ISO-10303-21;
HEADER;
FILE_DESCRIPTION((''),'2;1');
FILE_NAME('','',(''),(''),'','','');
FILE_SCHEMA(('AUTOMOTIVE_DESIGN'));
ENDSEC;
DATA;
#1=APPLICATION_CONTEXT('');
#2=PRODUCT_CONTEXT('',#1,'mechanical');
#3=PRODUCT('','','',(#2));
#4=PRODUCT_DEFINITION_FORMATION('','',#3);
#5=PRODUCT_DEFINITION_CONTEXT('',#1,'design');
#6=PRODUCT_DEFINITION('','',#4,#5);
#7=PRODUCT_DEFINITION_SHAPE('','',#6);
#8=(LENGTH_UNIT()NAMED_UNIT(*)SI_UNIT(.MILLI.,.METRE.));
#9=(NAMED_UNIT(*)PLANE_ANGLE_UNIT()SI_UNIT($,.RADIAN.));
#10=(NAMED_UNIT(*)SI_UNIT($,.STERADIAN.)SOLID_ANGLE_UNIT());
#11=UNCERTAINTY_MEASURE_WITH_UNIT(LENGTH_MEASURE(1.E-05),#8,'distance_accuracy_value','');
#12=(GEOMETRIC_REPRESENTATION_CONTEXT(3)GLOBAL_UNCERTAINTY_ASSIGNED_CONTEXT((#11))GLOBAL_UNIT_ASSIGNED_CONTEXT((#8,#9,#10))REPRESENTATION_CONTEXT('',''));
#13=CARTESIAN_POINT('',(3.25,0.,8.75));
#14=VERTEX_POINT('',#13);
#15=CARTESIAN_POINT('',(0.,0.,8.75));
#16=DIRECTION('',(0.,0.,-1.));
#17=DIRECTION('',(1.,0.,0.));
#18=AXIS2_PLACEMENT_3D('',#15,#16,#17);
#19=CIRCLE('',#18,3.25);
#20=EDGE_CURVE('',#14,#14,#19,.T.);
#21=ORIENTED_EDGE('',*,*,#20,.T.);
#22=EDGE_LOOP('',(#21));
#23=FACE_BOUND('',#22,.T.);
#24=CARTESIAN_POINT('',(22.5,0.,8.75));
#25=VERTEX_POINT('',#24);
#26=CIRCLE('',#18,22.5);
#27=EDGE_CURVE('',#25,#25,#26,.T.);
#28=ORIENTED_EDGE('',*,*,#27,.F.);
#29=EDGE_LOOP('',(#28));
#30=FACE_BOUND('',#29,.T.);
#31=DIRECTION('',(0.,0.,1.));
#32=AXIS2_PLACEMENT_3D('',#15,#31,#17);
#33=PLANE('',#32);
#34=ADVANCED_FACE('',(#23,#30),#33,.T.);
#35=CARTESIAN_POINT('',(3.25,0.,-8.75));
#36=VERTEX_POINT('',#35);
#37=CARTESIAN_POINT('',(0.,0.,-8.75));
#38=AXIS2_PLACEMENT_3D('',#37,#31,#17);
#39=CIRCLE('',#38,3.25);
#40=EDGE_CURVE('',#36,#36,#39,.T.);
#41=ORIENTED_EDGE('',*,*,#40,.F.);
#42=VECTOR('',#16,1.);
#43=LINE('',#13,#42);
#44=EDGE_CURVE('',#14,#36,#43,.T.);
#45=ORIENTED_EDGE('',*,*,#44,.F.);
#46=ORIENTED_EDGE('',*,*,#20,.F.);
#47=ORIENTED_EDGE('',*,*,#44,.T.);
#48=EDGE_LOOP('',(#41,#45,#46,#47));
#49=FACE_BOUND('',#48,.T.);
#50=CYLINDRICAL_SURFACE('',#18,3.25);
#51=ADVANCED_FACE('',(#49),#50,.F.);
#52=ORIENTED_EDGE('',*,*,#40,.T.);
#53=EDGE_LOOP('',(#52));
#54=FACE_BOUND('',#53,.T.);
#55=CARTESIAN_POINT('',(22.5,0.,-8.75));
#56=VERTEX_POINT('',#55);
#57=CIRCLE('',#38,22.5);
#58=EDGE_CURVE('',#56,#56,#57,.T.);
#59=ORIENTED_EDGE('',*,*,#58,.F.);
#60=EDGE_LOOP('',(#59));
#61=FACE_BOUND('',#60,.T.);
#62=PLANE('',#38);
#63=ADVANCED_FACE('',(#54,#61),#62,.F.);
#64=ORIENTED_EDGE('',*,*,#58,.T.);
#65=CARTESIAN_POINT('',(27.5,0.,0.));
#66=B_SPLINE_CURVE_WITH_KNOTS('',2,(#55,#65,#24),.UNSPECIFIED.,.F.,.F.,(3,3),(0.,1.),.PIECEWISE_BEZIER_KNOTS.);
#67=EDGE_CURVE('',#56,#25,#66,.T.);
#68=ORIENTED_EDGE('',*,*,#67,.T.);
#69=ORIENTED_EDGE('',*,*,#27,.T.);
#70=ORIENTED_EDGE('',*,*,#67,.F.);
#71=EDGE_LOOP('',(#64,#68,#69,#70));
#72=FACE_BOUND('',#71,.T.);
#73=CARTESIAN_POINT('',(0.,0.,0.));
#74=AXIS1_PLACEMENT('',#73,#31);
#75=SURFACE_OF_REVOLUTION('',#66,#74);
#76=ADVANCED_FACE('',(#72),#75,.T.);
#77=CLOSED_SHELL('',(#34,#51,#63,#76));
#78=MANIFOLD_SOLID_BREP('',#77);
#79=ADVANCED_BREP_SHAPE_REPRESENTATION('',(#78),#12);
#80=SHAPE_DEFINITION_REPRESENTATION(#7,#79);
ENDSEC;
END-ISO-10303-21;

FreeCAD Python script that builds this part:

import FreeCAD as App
import Part
import Sketcher
from FreeCAD import Vector
Q = App.Units.Quantity

doc = App.newDocument("Part")
body = doc.addObject("PartDesign::Body", "Body")

sketch1 = body.newObject("Sketcher::SketchObject", "Sketch")
sketch1.AttachmentSupport = (doc.getObject("XZ_Plane"), [""])
sketch1.MapMode = "FlatFace"
sketch1.addGeometry([
    Part.LineSegment(Vector(-3.25, 8.75, 0), Vector(-22.5, 8.75, 0)),
    Part.BSplineCurve([Vector(-22.5, 8.75, 0), Vector(-27.5, 0, 0), Vector(-22.5, -8.75, 0)], [3, 3], [0, 1], False, 2, [1, 1, 1], False),
    Part.LineSegment(Vector(-22.5, -8.75, 0), Vector(-3.25, -8.75, 0)),
    Part.LineSegment(Vector(-3.25, -8.75, 0), Vector(-3.25, 8.75, 0)),
    Part.BSplineCurve([Vector(22.5, -8.75, 0), Vector(27.5, 0, 0), Vector(22.5, 8.75, 0)], [3, 3], [0, 1], False, 2, [1, 1, 1], False),
    Part.LineSegment(Vector(22.5, 8.75, 0), Vector(3.25, 8.75, 0)),
    Part.LineSegment(Vector(3.25, 8.75, 0), Vector(3.25, -8.75, 0)),
    Part.LineSegment(Vector(3.25, -8.75, 0), Vector(22.5, -8.75, 0)),
], False)
sketch1.addConstraint([
    Sketcher.Constraint("Block", 1),
    Sketcher.Constraint("Block", 4),
    Sketcher.Constraint("Coincident", 0, 2, 1, 1),
    Sketcher.Constraint("Coincident", 1, 2, 2, 1),
    Sketcher.Constraint("Coincident", 2, 2, 3, 1),
    Sketcher.Constraint("Coincident", 3, 2, 0, 1),
    Sketcher.Constraint("Coincident", 4, 2, 5, 1),
    Sketcher.Constraint("Coincident", 5, 2, 6, 1),
    Sketcher.Constraint("Coincident", 6, 2, 7, 1),
    Sketcher.Constraint("Coincident", 7, 2, 4, 1),
    Sketcher.Constraint("Horizontal", 0),
    Sketcher.Constraint("Horizontal", 2),
    Sketcher.Constraint("Vertical", 3),
    Sketcher.Constraint("Horizontal", 5),
    Sketcher.Constraint("Vertical", 6),
    Sketcher.Constraint("Horizontal", 7),
    Sketcher.Constraint("Equal", 2, 5),
    Sketcher.Constraint("DistanceX", 0, 2, 0, 1, Q("19.25 mm")),
])
revolution = body.newObject("PartDesign::Revolution", "Revolution")
revolution.Profile = sketch1
revolution.ReferenceAxis = (sketch1, ["V_Axis"])
revolution.Angle = 360

doc.recompute()
